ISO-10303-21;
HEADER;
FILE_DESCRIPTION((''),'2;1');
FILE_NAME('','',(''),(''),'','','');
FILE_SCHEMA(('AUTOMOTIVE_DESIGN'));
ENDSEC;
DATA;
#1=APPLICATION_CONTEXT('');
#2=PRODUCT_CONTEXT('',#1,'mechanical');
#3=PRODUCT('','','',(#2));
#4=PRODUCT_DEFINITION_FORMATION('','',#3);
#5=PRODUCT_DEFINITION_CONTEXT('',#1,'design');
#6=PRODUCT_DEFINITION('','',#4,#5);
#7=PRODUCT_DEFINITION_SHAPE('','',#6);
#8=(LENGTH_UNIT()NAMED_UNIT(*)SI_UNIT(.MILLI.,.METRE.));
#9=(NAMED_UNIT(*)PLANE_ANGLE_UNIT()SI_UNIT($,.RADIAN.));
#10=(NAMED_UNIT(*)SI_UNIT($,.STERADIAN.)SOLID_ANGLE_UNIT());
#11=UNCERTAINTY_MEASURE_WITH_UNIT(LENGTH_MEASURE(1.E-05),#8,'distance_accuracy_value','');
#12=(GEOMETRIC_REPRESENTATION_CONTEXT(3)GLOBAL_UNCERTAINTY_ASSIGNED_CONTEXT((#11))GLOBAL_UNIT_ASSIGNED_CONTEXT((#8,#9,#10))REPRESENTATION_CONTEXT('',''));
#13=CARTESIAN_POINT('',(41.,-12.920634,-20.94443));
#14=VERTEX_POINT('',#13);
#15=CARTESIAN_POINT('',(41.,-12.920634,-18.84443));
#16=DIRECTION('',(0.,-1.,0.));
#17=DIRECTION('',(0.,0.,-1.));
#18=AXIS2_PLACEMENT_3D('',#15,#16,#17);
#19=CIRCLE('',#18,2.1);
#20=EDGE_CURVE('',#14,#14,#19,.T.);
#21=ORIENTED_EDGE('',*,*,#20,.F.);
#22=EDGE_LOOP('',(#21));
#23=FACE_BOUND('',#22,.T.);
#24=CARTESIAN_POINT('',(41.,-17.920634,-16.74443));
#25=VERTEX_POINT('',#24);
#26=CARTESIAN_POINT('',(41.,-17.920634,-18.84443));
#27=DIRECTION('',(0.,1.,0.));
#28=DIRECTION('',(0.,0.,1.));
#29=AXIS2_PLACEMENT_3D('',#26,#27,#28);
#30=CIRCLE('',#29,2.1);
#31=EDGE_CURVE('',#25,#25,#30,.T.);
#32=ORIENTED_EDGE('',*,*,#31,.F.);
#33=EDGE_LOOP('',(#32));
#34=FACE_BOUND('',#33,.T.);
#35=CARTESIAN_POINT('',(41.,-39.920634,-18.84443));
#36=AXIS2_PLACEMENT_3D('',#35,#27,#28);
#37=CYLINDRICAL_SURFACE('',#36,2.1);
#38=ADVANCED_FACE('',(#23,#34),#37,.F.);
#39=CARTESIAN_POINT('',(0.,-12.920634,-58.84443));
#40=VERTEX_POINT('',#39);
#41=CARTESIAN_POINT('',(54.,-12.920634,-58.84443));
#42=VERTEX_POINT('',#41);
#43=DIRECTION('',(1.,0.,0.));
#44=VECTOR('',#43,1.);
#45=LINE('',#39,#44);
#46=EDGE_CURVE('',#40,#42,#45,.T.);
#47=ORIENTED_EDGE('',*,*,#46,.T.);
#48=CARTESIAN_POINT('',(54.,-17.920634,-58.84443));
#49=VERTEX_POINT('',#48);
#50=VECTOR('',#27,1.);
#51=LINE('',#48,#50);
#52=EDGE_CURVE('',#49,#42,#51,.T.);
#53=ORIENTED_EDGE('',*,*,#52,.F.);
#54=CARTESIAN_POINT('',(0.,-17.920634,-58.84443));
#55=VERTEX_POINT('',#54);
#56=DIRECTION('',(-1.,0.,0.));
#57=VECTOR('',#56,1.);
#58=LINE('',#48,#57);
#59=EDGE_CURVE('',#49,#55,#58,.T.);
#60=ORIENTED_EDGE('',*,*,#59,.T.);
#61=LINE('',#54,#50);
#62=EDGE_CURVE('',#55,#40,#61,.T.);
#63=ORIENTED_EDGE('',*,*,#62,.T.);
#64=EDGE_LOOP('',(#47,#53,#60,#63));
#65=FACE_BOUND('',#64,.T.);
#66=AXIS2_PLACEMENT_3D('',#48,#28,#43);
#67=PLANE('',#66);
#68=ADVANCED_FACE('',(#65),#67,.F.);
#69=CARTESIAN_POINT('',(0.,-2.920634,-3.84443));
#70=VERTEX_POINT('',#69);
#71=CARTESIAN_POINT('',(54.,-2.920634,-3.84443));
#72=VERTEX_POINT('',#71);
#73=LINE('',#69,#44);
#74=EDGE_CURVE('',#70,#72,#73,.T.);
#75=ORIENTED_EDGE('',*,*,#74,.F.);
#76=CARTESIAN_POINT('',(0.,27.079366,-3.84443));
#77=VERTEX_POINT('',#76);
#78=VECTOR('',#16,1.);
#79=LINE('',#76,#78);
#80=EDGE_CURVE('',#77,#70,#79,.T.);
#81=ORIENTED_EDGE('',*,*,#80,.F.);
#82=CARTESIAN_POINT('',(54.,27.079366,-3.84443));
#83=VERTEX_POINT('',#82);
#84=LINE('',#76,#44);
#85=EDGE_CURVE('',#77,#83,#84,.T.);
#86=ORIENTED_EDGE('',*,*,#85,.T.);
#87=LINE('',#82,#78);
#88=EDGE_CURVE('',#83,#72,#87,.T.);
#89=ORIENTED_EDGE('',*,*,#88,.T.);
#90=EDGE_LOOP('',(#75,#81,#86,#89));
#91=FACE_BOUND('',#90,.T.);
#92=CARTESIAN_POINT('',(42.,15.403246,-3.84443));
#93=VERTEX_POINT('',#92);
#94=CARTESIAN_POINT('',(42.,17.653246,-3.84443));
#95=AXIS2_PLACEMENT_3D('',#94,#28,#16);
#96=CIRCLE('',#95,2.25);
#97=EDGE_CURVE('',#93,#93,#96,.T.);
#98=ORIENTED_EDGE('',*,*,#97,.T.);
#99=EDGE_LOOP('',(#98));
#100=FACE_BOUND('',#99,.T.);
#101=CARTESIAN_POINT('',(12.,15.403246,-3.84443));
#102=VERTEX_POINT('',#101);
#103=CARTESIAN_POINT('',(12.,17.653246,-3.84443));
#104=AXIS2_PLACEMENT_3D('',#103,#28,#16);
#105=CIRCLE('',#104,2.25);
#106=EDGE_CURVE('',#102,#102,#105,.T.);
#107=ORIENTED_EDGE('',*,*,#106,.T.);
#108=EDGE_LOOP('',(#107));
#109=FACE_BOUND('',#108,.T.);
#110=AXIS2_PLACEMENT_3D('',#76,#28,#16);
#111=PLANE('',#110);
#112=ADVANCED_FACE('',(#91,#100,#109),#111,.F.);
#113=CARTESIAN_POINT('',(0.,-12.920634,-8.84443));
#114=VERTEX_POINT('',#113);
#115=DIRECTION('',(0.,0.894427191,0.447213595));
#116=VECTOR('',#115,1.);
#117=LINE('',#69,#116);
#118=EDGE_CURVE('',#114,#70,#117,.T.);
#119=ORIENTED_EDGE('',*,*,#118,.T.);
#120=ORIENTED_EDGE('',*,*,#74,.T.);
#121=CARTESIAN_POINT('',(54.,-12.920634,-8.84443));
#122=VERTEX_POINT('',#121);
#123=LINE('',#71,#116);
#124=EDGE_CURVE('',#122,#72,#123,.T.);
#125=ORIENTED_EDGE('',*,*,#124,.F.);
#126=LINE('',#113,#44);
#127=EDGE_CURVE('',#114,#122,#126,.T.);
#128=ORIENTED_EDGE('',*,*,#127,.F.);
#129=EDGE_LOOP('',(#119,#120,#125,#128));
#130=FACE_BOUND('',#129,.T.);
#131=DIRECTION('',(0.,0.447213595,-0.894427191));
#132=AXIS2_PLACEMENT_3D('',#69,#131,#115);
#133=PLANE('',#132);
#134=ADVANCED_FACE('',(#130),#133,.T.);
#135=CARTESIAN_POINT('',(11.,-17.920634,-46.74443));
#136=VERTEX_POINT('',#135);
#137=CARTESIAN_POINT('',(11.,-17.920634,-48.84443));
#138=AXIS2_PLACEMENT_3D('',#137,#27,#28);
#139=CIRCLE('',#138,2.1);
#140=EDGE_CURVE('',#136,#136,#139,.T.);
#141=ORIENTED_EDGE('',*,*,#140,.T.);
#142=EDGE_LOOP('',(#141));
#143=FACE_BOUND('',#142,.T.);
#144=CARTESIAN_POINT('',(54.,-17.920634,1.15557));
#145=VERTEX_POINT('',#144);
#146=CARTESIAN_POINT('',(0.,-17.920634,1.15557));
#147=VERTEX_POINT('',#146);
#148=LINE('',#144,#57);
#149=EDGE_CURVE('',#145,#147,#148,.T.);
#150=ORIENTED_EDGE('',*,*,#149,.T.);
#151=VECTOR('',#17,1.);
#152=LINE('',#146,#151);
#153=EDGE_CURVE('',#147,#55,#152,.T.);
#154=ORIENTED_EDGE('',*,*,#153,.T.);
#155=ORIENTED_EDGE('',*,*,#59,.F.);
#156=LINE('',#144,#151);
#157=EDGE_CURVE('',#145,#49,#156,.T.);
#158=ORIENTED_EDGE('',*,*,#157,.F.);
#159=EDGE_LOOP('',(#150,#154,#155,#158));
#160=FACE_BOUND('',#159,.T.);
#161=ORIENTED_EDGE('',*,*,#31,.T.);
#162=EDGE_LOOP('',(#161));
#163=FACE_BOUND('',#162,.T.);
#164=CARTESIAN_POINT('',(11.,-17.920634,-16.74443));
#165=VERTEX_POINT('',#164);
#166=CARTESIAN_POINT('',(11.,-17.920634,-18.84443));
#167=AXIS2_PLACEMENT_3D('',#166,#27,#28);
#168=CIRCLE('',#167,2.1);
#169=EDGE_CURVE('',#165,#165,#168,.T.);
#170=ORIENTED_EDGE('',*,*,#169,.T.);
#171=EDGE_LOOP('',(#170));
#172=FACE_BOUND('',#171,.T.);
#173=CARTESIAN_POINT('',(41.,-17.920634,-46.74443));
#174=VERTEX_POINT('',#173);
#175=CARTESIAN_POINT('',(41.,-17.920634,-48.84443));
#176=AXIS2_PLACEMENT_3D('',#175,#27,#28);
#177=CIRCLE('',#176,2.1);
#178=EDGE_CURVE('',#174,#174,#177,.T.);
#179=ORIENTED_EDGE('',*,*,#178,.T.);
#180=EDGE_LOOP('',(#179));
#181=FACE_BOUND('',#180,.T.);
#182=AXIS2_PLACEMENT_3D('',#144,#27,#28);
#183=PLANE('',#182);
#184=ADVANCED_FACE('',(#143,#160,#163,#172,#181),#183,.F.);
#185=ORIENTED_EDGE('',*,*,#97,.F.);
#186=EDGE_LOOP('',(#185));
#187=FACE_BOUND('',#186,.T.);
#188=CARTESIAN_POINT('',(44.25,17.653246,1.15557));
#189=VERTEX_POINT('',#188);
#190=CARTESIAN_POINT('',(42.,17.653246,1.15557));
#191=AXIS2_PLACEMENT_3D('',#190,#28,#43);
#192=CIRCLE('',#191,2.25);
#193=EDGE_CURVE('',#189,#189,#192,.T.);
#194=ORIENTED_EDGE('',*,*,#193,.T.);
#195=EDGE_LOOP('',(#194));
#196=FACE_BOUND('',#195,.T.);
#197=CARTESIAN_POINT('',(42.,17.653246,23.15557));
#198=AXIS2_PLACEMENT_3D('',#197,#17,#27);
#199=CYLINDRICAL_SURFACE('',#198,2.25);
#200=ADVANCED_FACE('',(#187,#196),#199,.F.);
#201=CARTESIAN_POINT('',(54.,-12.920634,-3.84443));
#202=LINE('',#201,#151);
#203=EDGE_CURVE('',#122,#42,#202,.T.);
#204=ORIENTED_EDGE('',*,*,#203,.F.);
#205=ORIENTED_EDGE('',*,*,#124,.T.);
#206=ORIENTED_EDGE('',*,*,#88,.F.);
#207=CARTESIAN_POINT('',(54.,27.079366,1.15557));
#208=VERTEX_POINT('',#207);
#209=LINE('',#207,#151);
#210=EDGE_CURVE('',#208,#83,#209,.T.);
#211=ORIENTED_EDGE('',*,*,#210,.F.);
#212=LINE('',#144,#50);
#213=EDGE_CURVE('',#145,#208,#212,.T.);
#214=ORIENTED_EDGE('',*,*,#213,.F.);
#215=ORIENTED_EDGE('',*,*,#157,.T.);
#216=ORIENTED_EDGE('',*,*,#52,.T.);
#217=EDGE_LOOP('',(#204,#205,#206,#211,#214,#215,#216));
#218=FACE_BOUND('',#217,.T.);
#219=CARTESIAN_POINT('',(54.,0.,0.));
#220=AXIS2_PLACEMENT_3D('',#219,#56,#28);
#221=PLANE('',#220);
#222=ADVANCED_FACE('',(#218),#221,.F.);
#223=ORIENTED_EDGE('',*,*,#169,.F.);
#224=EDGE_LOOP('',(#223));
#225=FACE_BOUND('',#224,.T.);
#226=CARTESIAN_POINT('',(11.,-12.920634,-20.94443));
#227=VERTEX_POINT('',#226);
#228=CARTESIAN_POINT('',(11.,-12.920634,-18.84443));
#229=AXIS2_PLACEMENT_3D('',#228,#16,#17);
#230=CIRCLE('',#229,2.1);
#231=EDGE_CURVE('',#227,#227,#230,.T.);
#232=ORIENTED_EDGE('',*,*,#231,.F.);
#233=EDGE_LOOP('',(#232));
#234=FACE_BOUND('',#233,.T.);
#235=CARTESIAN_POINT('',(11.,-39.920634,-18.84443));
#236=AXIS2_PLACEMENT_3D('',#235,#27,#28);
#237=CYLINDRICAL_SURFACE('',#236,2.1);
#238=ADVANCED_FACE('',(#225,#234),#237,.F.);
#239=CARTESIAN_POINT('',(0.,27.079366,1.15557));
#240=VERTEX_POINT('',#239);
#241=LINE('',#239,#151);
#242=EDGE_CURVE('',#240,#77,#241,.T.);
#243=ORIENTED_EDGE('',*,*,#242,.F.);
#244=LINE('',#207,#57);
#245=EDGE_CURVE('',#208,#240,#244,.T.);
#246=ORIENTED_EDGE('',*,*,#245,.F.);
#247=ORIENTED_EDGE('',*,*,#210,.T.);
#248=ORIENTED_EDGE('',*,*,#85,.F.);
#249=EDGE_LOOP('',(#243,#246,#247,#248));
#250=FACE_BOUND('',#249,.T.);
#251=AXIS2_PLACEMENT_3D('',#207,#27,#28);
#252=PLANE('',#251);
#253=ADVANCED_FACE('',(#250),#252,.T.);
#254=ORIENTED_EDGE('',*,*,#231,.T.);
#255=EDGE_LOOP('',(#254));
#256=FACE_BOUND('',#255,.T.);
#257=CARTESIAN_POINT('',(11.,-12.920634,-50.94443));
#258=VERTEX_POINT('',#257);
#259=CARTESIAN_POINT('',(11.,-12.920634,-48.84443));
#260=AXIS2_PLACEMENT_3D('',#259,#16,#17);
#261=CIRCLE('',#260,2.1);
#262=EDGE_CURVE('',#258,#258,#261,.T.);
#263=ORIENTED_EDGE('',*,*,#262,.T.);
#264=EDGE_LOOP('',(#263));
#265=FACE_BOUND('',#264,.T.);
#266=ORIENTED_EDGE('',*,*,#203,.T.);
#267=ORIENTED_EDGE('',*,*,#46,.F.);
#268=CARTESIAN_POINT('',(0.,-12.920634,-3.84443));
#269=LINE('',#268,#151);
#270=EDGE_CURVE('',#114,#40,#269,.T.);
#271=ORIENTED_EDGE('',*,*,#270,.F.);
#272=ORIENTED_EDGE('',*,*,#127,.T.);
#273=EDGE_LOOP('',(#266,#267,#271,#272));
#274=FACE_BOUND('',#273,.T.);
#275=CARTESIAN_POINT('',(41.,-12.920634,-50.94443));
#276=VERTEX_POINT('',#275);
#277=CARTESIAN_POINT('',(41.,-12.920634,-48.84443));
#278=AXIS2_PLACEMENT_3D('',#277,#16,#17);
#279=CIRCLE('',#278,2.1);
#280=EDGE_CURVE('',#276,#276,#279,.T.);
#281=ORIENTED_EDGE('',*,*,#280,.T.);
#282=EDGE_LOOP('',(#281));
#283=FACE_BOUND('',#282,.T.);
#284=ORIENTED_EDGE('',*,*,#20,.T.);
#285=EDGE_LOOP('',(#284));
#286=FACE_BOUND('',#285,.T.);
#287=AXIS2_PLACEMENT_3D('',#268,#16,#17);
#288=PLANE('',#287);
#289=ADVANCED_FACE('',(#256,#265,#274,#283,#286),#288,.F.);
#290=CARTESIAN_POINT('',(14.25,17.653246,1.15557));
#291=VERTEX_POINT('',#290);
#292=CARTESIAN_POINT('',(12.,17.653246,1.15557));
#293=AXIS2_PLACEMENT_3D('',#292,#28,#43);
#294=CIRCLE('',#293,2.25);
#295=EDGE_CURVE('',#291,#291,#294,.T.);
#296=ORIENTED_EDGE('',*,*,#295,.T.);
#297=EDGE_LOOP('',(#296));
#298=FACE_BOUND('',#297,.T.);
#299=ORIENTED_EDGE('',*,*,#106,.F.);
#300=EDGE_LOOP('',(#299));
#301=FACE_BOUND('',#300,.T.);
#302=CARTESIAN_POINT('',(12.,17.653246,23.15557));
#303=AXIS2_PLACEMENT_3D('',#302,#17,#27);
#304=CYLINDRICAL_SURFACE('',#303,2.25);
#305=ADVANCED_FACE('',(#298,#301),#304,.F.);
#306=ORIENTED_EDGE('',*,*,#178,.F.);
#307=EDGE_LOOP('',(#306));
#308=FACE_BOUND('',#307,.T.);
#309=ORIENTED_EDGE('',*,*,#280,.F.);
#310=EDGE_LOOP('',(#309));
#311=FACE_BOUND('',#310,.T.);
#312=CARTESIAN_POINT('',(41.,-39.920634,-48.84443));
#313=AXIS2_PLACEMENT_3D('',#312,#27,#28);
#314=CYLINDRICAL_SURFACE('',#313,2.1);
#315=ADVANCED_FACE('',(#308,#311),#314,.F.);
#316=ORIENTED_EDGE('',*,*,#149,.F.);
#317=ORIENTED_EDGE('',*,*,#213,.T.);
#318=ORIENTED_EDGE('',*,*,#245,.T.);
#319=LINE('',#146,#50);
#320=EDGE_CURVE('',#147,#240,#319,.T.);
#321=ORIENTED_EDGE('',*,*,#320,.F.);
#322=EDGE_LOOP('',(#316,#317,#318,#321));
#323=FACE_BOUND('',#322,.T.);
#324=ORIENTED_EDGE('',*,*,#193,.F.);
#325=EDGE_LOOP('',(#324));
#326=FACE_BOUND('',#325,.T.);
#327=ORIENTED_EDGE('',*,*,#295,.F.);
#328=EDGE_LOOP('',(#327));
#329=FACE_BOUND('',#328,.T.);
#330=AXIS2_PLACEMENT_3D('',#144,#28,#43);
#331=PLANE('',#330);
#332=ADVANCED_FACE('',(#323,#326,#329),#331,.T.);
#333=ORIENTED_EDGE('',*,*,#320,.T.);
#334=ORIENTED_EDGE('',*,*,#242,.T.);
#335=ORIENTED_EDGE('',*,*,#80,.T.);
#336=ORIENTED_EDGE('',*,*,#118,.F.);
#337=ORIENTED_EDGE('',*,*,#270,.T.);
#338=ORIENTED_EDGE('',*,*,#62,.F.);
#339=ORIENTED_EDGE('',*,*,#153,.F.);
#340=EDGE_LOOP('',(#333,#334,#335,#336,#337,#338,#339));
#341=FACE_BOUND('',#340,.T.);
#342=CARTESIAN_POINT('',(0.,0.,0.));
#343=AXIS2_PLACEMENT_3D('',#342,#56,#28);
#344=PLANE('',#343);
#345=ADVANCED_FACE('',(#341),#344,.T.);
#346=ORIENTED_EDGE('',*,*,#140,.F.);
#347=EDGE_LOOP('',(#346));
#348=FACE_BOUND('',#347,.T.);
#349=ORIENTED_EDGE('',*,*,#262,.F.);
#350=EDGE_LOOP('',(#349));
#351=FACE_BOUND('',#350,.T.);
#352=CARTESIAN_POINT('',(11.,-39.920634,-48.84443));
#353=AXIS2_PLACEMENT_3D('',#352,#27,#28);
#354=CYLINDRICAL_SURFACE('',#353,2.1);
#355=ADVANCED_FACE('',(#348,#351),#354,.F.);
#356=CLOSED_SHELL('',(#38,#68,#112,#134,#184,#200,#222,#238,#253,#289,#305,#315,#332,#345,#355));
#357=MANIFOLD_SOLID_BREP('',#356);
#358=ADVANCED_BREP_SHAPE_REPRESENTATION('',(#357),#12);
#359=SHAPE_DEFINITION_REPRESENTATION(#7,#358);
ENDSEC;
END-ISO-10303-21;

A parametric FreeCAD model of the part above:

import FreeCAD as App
import Part
import Sketcher
Q = App.Units.Quantity


def add_polygon(sketch, points):
    """Adds a closed chain of lines whose ends are joined by coincident constraints."""
    first, n = sketch.GeometryCount, len(points)
    for a, b in zip(points, points[1:] + points[:1]):
        sketch.addGeometry(Part.LineSegment(App.Vector(*a, 0), App.Vector(*b, 0)), False)
    for i in range(n):
        sketch.addConstraint(Sketcher.Constraint("Coincident", first + i, 2, first + (i + 1) % n, 1))

doc = App.newDocument("Part")
body = doc.addObject("PartDesign::Body", "Body")

sketch1 = doc.addObject("Sketcher::SketchObject", "Sketch")
body.addObject(sketch1)
sketch1.AttachmentSupport = (doc.YZ_Plane, [""])
sketch1.MapMode = "FlatFace"
add_polygon(sketch1, [(27, 1), (-18, 1), (-18, -59), (27, -59)])
sketch1.addConstraint([
    Sketcher.Constraint("Horizontal", 0),
    Sketcher.Constraint("Vertical", 1),
    Sketcher.Constraint("Horizontal", 2),
    Sketcher.Constraint("Vertical", 3),
    Sketcher.Constraint("DistanceX", 0, 2, 0, 1, Q("45 mm")),
    Sketcher.Constraint("DistanceY", 1, 2, 1, 1, Q("60 mm")),
    Sketcher.Constraint("DistanceY", -1, 1, 0, 2, Q("1.15557 mm")),
    Sketcher.Constraint("DistanceX", 0, 2, -1, 1, Q("17.920634 mm")),
])
pad1 = doc.addObject("PartDesign::Pad", "Pad")
body.addObject(pad1)
pad1.Profile = sketch1
pad1.Length = 54

sketch2 = doc.addObject("Sketcher::SketchObject", "Sketch001")
body.addObject(sketch2)
sketch2.AttachmentSupport = (doc.YZ_Plane, [""])
sketch2.MapMode = "FlatFace"
sketch2.AttachmentOffset = App.Placement(App.Vector(0, 0, 54), App.Rotation())
add_polygon(sketch2, [(27, -4), (-13, -4), (-13, -59), (27, -59)])
sketch2.addConstraint([
    Sketcher.Constraint("Horizontal", 0),
    Sketcher.Constraint("Vertical", 1),
    Sketcher.Constraint("Horizontal", 2),
    Sketcher.Constraint("Vertical", 3),
    Sketcher.Constraint("DistanceX", 0, 2, 0, 1, Q("40 mm")),
    Sketcher.Constraint("DistanceY", 1, 2, 1, 1, Q("55 mm")),
    Sketcher.Constraint("DistanceY", 0, 2, -1, 1, Q("3.84443 mm")),
    Sketcher.Constraint("DistanceX", 0, 2, -1, 1, Q("12.920634 mm")),
])
pocket1 = doc.addObject("PartDesign::Pocket", "Pocket")
body.addObject(pocket1)
pocket1.Profile = sketch2
pocket1.Length = 54

sketch3 = doc.addObject("Sketcher::SketchObject", "Sketch002")
body.addObject(sketch3)
sketch3.AttachmentSupport = (doc.XY_Plane, [""])
sketch3.MapMode = "FlatFace"
sketch3.AttachmentOffset = App.Placement(App.Vector(0, 0, -3.84443), App.Rotation())
sketch3.addGeometry([
    Part.Circle(App.Vector(42, 17.7, 0), App.Vector(0, 0, 1), 2.2),
    Part.Circle(App.Vector(12, 17.7, 0), App.Vector(0, 0, 1), 2.2),
], False)
sketch3.addConstraint([
    Sketcher.Constraint("Equal", 0, 1),
    Sketcher.Constraint("Horizontal", 0, 3, 1, 3),
    Sketcher.Constraint("Diameter", 0, Q("4.5 mm")),
    Sketcher.Constraint("DistanceX", -1, 1, 0, 3, Q("42 mm")),
    Sketcher.Constraint("DistanceX", -1, 1, 1, 3, Q("12 mm")),
    Sketcher.Constraint("DistanceY", -1, 1, 0, 3, Q("17.653246 mm")),
])
pocket2 = doc.addObject("PartDesign::Pocket", "Pocket001")
body.addObject(pocket2)
pocket2.Profile = sketch3
pocket2.Length = 54
pocket2.Midplane = True

sketch4 = doc.addObject("Sketcher::SketchObject", "Sketch003")
body.addObject(sketch4)
sketch4.AttachmentSupport = (doc.XZ_Plane, [""])
sketch4.MapMode = "FlatFace"
sketch4.AttachmentOffset = App.Placement(App.Vector(0, 0, 12.920634), App.Rotation())
sketch4.addGeometry([
    Part.Circle(App.Vector(11, -48.8, 0), App.Vector(0, 0, 1), 2.1),
    Part.Circle(App.Vector(41, -48.8, 0), App.Vector(0, 0, 1), 2.1),
    Part.Circle(App.Vector(11, -18.8, 0), App.Vector(0, 0, 1), 2.1),
    Part.Circle(App.Vector(41, -18.8, 0), App.Vector(0, 0, 1), 2.1),
], False)
sketch4.addConstraint([
    Sketcher.Constraint("Equal", 0, 1),
    Sketcher.Constraint("Equal", 1, 2),
    Sketcher.Constraint("Equal", 2, 3),
    Sketcher.Constraint("Horizontal", 0, 3, 1, 3),
    Sketcher.Constraint("Horizontal", 2, 3, 3, 3),
    Sketcher.Constraint("Vertical", 0, 3, 2, 3),
    Sketcher.Constraint("Vertical", 1, 3, 3, 3),
    Sketcher.Constraint("Diameter", 0, Q("4.2 mm")),
    Sketcher.Constraint("DistanceX", -1, 1, 0, 3, Q("11 mm")),
    Sketcher.Constraint("DistanceX", -1, 1, 1, 3, Q("41 mm")),
    Sketcher.Constraint("DistanceY", 0, 3, 2, 3, Q("30 mm")),
    Sketcher.Constraint("DistanceY", 0, 3, -1, 1, Q("48.84443 mm")),
])
pocket3 = doc.addObject("PartDesign::Pocket", "Pocket002")
body.addObject(pocket3)
pocket3.Profile = sketch4
pocket3.Length = 54
pocket3.Midplane = True

sketch5 = doc.addObject("Sketcher::SketchObject", "Sketch004")
body.addObject(sketch5)
sketch5.AttachmentSupport = (doc.YZ_Plane, [""])
sketch5.MapMode = "FlatFace"
sketch5.AttachmentOffset = App.Placement(App.Vector(0, 0, 54), App.Rotation())
add_polygon(sketch5, [(-13, -9), (-3, -4), (-13, -4)])
sketch5.addConstraint([
    Sketcher.Constraint("Horizontal", 1),
    Sketcher.Constraint("Vertical", 2),
    Sketcher.Constraint("DistanceX", 1, 2, 1, 1, Q("10 mm")),
    Sketcher.Constraint("DistanceY", 2, 2, 2, 1, Q("5 mm")),
    Sketcher.Constraint("DistanceY", 0, 2, -1, 1, Q("3.84443 mm")),
    Sketcher.Constraint("DistanceX", 0, 2, -1, 1, Q("2.920634 mm")),
])
pad2 = doc.addObject("PartDesign::Pad", "Pad001")
body.addObject(pad2)
pad2.Profile = sketch5
pad2.Length = 54
pad2.Reversed = True

doc.recompute()
